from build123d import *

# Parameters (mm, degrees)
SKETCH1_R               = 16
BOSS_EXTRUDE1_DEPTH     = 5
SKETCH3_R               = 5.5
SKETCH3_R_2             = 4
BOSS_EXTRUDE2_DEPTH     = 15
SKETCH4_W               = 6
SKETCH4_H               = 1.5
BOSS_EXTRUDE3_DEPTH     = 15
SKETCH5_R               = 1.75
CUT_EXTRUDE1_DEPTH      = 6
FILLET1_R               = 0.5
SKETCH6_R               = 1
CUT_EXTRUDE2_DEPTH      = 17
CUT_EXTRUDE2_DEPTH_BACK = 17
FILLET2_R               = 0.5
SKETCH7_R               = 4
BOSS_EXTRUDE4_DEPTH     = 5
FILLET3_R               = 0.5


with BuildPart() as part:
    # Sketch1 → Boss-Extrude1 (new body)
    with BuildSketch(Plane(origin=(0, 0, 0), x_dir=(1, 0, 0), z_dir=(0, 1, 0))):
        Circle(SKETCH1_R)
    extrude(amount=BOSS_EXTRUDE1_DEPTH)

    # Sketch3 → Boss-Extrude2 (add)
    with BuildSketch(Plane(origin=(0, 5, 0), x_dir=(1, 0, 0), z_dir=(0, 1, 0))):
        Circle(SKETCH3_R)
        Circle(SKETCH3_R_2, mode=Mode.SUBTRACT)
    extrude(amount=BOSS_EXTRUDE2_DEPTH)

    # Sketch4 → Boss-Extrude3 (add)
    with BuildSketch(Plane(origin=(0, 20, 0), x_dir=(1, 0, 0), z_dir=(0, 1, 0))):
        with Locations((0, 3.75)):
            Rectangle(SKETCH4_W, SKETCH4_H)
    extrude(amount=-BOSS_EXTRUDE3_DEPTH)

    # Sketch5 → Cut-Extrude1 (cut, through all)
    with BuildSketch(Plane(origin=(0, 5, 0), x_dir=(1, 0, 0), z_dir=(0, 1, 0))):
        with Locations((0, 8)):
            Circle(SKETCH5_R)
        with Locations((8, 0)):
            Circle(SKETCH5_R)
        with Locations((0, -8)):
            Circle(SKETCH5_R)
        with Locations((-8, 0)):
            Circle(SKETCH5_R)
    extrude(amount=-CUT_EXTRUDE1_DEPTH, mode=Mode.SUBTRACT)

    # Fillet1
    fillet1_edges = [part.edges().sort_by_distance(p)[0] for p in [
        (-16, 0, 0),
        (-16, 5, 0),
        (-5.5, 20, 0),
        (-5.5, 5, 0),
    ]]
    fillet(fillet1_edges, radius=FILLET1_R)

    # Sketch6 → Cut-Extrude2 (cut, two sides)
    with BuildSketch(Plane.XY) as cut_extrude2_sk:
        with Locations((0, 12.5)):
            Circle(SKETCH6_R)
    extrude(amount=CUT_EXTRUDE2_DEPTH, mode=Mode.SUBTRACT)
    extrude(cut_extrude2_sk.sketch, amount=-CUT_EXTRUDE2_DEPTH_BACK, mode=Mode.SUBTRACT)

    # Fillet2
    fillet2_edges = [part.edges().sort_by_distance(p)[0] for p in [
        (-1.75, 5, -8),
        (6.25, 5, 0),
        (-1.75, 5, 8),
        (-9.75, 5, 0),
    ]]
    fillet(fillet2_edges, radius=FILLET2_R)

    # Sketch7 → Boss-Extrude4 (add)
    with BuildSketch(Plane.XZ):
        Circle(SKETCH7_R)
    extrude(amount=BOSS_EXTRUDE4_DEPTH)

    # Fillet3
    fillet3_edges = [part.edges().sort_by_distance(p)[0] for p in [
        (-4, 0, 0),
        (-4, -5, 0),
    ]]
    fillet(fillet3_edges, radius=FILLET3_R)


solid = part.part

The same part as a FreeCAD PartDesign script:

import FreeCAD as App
import Part
import Sketcher
from FreeCAD import Vector
Q = App.Units.Quantity


def edges_at(feature, points):
    """Names of the edges that pass closest to the given points."""
    edges = feature.Shape.Edges
    near = lambda p: min(range(len(edges)), key=lambda i: edges[i].distToShape(Part.Vertex(*p))[0])
    return sorted({f"Edge{near(p) + 1}" for p in points})

doc = App.newDocument("Part")
body = doc.addObject("PartDesign::Body", "Body")

# Sketch on XZ plane
sketch1 = body.newObject("Sketcher::SketchObject", "Sketch")
sketch1.AttachmentSupport = (doc.getObject("XZ_Plane"), [""])
sketch1.MapMode = "FlatFace"
sketch1.addGeometry(Part.Circle(Vector(0, 0, 0), Vector(0, 0, 1), 16), False)
sketch1.addConstraint([
    Sketcher.Constraint("Coincident", 0, 3, -1, 1),
    Sketcher.Constraint("Diameter", 0, Q("32 mm")),
])
pad1 = body.newObject("PartDesign::Pad", "Pad")
pad1.Profile = sketch1
pad1.Length = 5
pad1.Reversed = True

# Sketch on XZ plane
sketch2 = body.newObject("Sketcher::SketchObject", "Sketch001")
sketch2.AttachmentSupport = (doc.getObject("XZ_Plane"), [""])
sketch2.MapMode = "FlatFace"
sketch2.AttachmentOffset = App.Placement(Vector(0, 0, -5), App.Rotation())
sketch2.addGeometry([
    Part.Circle(Vector(0, 0, 0), Vector(0, 0, 1), 5.5),
    Part.Circle(Vector(0, 0, 0), Vector(0, 0, 1), 4),
], False)
sketch2.addConstraint([
    Sketcher.Constraint("Coincident", 0, 3, -1, 1),
    Sketcher.Constraint("Coincident", 1, 3, -1, 1),
    Sketcher.Constraint("Diameter", 0, Q("11 mm")),
    Sketcher.Constraint("Diameter", 1, Q("8 mm")),
])
pad2 = body.newObject("PartDesign::Pad", "Pad001")
pad2.Profile = sketch2
pad2.Length = 15
pad2.Reversed = True

# Sketch on XZ plane
sketch3 = body.newObject("Sketcher::SketchObject", "Sketch002")
sketch3.AttachmentSupport = (doc.getObject("XZ_Plane"), [""])
sketch3.MapMode = "FlatFace"
sketch3.AttachmentOffset = App.Placement(Vector(0, 0, -20), App.Rotation())
sketch3.addGeometry([
    Part.LineSegment(Vector(-3, -4.5, 0), Vector(-3, -3, 0)),
    Part.LineSegment(Vector(-3, -3, 0), Vector(3, -3, 0)),
    Part.LineSegment(Vector(3, -3, 0), Vector(3, -4.5, 0)),
    Part.LineSegment(Vector(3, -4.5, 0), Vector(-3, -4.5, 0)),
], False)
sketch3.addConstraint([
    Sketcher.Constraint("Coincident", 0, 2, 1, 1),
    Sketcher.Constraint("Coincident", 1, 2, 2, 1),
    Sketcher.Constraint("Coincident", 2, 2, 3, 1),
    Sketcher.Constraint("Coincident", 3, 2, 0, 1),
    Sketcher.Constraint("Vertical", 0),
    Sketcher.Constraint("Horizontal", 1),
    Sketcher.Constraint("Vertical", 2),
    Sketcher.Constraint("Horizontal", 3),
    Sketcher.Constraint("DistanceX", 1, 1, 1, 2, Q("6 mm")),
    Sketcher.Constraint("DistanceY", 0, 1, 0, 2, Q("1.5 mm")),
    Sketcher.Constraint("DistanceX", 0, 2, -1, 1, Q("3 mm")),
    Sketcher.Constraint("DistanceY", 0, 2, -1, 1, Q("3 mm")),
])
pad3 = body.newObject("PartDesign::Pad", "Pad002")
pad3.Profile = sketch3
pad3.Length = 15

# Sketch on XZ plane
sketch4 = body.newObject("Sketcher::SketchObject", "Sketch003")
sketch4.AttachmentSupport = (doc.getObject("XZ_Plane"), [""])
sketch4.MapMode = "FlatFace"
sketch4.AttachmentOffset = App.Placement(Vector(0, 0, -5), App.Rotation())
sketch4.addGeometry([
    Part.Circle(Vector(0, -8, 0), Vector(0, 0, 1), 1.75),
    Part.Circle(Vector(8, 0, 0), Vector(0, 0, 1), 1.75),
    Part.Circle(Vector(0, 8, 0), Vector(0, 0, 1), 1.75),
    Part.Circle(Vector(-8, 0, 0), Vector(0, 0, 1), 1.75),
], False)
sketch4.addConstraint([
    Sketcher.Constraint("Equal", 0, 1),
    Sketcher.Constraint("Equal", 1, 2),
    Sketcher.Constraint("Equal", 2, 3),
    Sketcher.Constraint("Symmetric", 0, 3, 2, 3, -1, 1),
    Sketcher.Constraint("Symmetric", 1, 3, 3, 3, -1, 1),
    Sketcher.Constraint("PointOnObject", 0, 3, -2),
    Sketcher.Constraint("PointOnObject", 1, 3, -1),
    Sketcher.Constraint("Diameter", 0, Q("3.5 mm")),
    Sketcher.Constraint("DistanceY", 0, 3, -1, 1, Q("8 mm")),
    Sketcher.Constraint("DistanceX", -1, 1, 1, 3, Q("8 mm")),
])
pocket1 = body.newObject("PartDesign::Pocket", "Pocket")
pocket1.Profile = sketch4
pocket1.Type = "ThroughAll"
pocket1.Reversed = True
doc.recompute()

fillet = body.newObject("PartDesign::Fillet", "Fillet")
fillet.Base = (pocket1, edges_at(pocket1, [
    (-16, 0, 0),
    (-16, 5, 0),
    (-5.5, 20, 0),
    (-5.5, 5, 0),
]))
fillet.Radius = 0.5

# Sketch on XY plane
sketch5 = body.newObject("Sketcher::SketchObject", "Sketch004")
sketch5.AttachmentSupport = (doc.getObject("XY_Plane"), [""])
sketch5.MapMode = "FlatFace"
sketch5.addGeometry(Part.Circle(Vector(0, 12.5, 0), Vector(0, 0, 1), 1), False)
sketch5.addConstraint([
    Sketcher.Constraint("PointOnObject", 0, 3, -2),
    Sketcher.Constraint("Diameter", 0, Q("2 mm")),
    Sketcher.Constraint("DistanceY", -1, 1, 0, 3, Q("12.5 mm")),
])
pocket2 = body.newObject("PartDesign::Pocket", "Pocket001")
pocket2.Profile = sketch5
pocket2.Type = "ThroughAll"
pocket2.Midplane = True
doc.recompute()

fillet2 = body.newObject("PartDesign::Fillet", "Fillet001")
fillet2.Base = (pocket2, edges_at(pocket2, [
    (-1.75, 5, -8),
    (6.25, 5, 0),
    (-1.75, 5, 8),
    (-9.75, 5, 0),
]))
fillet2.Radius = 0.5

# Sketch on XZ plane
sketch6 = body.newObject("Sketcher::SketchObject", "Sketch005")
sketch6.AttachmentSupport = (doc.getObject("XZ_Plane"), [""])
sketch6.MapMode = "FlatFace"
sketch6.addGeometry(Part.Circle(Vector(0, 0, 0), Vector(0, 0, 1), 4), False)
sketch6.addConstraint([
    Sketcher.Constraint("Coincident", 0, 3, -1, 1),
    Sketcher.Constraint("Diameter", 0, Q("8 mm")),
])
pad4 = body.newObject("PartDesign::Pad", "Pad003")
pad4.Profile = sketch6
pad4.Length = 5
doc.recompute()

fillet3 = body.newObject("PartDesign::Fillet", "Fillet002")
fillet3.Base = (pad4, edges_at(pad4, [(-4, 0, 0), (-4, -5, 0)]))
fillet3.Radius = 0.5

doc.recompute()
